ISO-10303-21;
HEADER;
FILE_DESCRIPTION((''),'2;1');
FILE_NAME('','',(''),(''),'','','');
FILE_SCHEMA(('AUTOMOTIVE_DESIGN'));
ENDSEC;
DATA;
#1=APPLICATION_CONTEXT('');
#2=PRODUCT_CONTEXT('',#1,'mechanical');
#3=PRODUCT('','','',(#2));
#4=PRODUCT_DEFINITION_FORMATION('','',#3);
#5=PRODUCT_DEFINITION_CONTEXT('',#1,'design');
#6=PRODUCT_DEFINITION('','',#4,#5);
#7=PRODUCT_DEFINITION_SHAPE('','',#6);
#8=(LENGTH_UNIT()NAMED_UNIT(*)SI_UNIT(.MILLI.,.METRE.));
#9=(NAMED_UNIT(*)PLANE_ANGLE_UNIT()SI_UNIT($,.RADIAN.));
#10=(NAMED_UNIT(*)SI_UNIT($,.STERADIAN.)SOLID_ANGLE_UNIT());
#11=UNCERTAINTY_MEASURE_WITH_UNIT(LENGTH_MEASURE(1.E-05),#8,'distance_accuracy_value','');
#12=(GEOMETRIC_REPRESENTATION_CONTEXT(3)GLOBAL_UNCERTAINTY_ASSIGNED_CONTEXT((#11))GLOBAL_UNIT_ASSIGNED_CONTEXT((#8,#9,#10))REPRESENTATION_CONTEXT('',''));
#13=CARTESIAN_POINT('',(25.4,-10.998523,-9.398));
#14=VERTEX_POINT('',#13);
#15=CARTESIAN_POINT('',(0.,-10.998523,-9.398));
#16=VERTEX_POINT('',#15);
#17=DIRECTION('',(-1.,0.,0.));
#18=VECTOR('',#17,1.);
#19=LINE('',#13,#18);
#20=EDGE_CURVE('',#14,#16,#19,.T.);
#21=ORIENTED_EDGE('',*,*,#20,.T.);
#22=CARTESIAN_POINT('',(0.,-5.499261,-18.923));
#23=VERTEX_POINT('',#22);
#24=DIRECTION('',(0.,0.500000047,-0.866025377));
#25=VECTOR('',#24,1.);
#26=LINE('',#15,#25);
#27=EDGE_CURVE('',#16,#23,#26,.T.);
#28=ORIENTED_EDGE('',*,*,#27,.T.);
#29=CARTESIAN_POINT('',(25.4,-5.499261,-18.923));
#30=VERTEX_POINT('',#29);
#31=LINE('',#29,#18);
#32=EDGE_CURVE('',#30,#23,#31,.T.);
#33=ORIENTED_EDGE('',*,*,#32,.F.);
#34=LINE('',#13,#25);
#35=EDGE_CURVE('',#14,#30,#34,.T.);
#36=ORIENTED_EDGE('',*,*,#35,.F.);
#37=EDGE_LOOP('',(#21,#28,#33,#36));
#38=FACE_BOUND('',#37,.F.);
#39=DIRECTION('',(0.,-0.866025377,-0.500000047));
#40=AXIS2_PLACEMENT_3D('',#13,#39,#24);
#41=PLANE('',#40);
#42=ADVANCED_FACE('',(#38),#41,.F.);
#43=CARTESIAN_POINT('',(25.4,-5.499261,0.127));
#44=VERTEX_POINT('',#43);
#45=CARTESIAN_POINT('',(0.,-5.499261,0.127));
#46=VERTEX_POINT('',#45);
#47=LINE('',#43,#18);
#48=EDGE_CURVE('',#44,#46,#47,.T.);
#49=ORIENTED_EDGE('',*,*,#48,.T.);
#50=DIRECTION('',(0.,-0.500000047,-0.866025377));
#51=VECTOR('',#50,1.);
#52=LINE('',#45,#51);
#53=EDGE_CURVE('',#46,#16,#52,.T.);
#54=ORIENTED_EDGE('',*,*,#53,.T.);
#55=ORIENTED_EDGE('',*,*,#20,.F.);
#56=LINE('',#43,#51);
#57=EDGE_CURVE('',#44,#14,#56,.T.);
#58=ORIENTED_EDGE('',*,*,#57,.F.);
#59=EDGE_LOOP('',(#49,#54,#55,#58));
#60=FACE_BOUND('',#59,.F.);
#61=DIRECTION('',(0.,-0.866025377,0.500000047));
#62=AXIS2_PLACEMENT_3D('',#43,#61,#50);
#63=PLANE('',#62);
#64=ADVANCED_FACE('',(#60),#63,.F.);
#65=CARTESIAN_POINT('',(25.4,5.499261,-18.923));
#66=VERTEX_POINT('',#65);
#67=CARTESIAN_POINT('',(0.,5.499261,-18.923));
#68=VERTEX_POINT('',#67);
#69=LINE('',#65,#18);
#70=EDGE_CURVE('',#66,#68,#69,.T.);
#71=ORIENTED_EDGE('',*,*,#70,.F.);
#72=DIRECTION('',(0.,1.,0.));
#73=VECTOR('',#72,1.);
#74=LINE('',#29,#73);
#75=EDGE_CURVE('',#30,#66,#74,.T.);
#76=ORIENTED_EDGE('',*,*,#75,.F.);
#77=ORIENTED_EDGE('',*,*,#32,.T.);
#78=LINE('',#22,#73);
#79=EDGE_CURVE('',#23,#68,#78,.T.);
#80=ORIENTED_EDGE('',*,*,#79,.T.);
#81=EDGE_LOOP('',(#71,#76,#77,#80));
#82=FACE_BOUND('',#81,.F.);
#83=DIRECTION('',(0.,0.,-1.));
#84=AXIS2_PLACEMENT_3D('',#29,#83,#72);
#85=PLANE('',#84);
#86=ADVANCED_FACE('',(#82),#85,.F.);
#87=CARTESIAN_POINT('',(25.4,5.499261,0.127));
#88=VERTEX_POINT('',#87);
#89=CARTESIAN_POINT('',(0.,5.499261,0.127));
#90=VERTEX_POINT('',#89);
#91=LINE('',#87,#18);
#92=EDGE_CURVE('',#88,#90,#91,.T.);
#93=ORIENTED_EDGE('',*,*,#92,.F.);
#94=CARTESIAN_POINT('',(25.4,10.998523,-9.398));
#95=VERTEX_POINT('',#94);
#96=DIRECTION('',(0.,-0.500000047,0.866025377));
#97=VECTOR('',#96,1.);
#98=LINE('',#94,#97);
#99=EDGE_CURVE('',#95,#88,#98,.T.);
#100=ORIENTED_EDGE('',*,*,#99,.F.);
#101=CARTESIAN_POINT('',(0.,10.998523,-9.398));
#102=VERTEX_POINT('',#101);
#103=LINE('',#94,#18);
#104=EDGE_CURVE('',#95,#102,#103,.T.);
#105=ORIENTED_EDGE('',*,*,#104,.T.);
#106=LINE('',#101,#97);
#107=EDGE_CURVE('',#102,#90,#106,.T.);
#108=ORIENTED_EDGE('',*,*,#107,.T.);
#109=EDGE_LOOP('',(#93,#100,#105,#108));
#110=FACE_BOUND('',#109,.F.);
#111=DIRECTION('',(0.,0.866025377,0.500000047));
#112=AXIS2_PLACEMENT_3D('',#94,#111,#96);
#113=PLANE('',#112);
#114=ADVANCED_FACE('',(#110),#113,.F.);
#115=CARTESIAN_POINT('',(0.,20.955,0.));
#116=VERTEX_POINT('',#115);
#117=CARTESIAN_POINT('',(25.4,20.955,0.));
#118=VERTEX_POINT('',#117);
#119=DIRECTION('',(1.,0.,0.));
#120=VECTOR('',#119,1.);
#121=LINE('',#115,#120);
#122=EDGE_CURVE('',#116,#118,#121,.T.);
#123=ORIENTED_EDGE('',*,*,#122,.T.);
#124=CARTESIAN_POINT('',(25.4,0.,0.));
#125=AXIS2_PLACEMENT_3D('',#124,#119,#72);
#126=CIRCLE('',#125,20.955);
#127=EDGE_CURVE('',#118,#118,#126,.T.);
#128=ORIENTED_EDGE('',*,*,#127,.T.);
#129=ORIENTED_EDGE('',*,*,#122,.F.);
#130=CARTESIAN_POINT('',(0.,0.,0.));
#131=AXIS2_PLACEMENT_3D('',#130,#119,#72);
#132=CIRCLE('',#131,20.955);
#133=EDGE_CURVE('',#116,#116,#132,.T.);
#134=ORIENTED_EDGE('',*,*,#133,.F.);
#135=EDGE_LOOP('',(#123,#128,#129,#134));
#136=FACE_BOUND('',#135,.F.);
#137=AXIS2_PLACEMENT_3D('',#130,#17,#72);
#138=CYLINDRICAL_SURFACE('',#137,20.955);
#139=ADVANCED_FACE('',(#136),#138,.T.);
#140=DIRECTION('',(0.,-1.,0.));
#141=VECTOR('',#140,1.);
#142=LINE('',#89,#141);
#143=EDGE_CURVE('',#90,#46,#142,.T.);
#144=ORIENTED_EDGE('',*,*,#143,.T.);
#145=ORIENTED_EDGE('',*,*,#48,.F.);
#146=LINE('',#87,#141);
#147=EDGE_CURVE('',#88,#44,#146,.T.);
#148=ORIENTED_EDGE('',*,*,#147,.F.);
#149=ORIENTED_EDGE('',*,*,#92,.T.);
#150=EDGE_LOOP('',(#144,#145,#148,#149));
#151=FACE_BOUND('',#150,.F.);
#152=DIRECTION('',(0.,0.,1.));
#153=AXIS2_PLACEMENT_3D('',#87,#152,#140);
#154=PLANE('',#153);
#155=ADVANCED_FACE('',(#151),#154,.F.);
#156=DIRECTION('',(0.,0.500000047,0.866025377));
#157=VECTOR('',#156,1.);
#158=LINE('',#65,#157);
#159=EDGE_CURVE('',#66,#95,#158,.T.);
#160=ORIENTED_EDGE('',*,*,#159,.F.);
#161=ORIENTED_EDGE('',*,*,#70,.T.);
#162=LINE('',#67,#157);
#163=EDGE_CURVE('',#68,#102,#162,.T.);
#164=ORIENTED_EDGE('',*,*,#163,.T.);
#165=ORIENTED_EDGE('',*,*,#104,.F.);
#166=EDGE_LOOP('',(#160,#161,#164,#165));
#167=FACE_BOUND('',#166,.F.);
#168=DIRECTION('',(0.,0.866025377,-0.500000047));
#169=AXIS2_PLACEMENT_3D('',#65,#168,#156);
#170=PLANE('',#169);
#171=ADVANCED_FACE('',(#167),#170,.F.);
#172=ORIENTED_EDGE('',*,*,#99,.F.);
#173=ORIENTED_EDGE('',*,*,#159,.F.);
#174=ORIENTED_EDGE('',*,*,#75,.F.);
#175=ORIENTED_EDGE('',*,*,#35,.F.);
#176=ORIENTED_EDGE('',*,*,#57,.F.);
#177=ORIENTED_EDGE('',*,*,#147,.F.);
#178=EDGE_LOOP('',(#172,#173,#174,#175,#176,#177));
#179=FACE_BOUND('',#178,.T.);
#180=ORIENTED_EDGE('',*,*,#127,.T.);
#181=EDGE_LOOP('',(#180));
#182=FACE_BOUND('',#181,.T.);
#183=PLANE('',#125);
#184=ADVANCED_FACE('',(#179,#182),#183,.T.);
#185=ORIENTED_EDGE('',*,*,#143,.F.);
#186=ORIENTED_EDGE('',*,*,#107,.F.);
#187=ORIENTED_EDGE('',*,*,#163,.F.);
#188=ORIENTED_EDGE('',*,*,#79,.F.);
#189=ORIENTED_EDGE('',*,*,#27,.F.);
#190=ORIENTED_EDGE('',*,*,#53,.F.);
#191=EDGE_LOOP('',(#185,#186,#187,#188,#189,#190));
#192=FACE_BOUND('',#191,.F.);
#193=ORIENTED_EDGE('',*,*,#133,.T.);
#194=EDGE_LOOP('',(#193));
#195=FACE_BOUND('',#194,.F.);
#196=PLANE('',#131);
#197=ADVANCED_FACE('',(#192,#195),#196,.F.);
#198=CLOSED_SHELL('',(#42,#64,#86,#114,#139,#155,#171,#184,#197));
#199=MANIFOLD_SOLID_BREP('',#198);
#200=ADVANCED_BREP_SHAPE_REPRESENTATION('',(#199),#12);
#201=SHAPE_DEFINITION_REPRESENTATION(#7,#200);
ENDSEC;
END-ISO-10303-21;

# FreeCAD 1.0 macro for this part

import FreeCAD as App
import Part
import Sketcher

V = App.Vector
Q = App.Units.Quantity


def add_polygon(sketch, points):
    """Adds a closed chain of lines whose ends are joined by coincident constraints."""
    first, n = sketch.GeometryCount, len(points)
    for a, b in zip(points, points[1:] + points[:1]):
        sketch.addGeometry(Part.LineSegment(App.Vector(*a, 0), App.Vector(*b, 0)), False)
    for i in range(n):
        sketch.addConstraint(Sketcher.Constraint("Coincident", first + i, 2, first + (i + 1) % n, 1))

doc = App.newDocument("Part")
params = doc.addObject("Spreadsheet::Sheet", "Params")
for row, (alias, value) in enumerate([
    ("sketch1_diameter", "1.65 in"),
    ("pad1_length", "1 in"),
    ("pocket1_length", "1 in"),
], start=1):
    params.set(f"A{row}", alias)
    params.set(f"B{row}", "=" + value)
    params.setAlias(f"B{row}", alias)

body = doc.addObject("PartDesign::Body", "Body")

# Sketch on YZ plane
sketch1 = body.newObject("Sketcher::SketchObject", "Sketch")
sketch1.AttachmentSupport = (doc.getObject("YZ_Plane"), [""])
sketch1.MapMode = "FlatFace"
sketch1.addGeometry(Part.Circle(V(0, 0, 0), V(0, 0, 1), 21), False)
sketch1.addConstraint(Sketcher.Constraint("Coincident", 0, 3, -1, 1))
sketch1.addConstraint(Sketcher.Constraint("Diameter", 0, Q("1.65 in")))
sketch1.setExpression("Constraints[1]", "Params.sketch1_diameter")
pad1 = body.newObject("PartDesign::Pad", "Pad")
pad1.Profile = sketch1
pad1.setExpression("Length", "Params.pad1_length")

# Sketch on YZ plane
sketch2 = body.newObject("Sketcher::SketchObject", "Sketch001")
sketch2.AttachmentSupport = (doc.getObject("YZ_Plane"), [""])
sketch2.MapMode = "FlatFace"
sketch2.AttachmentOffset = App.Placement(V(0, 0, 1 * 25.4), App.Rotation())
add_polygon(sketch2, [(5, -19), (11, -9), (5, 0), (-5, 0), (-11, -9), (-5, -19)])  # lines 0-5
sketch2.addConstraint(Sketcher.Constraint("Horizontal", 2))
sketch2.addConstraint(Sketcher.Constraint("Horizontal", 5))
sketch2.addConstraint(Sketcher.Constraint("Symmetric", 0, 2, 3, 2, -2))
sketch2.addConstraint(Sketcher.Constraint("Parallel", 0, 3))
sketch2.addConstraint(Sketcher.Constraint("Parallel", 1, 4))
sketch2.addConstraint(Sketcher.Constraint("Vertical", 2, 2, 4, 2))
sketch2.addConstraint(Sketcher.Constraint("Vertical", 1, 2, 5, 2))
sketch2.addConstraint(Sketcher.Constraint("Angle", 0, Q("59.999997 deg")))
sketch2.addConstraint(Sketcher.Constraint("DistanceY", 0, 2, -1, 1, Q("0.37 in")))
sketch2.addConstraint(Sketcher.Constraint("DistanceY", 4, 2, 2, 2, Q("0.75 in")))
sketch2.addConstraint(Sketcher.Constraint("DistanceX", 2, 2, 2, 1, Q("10.998522 mm")))
pocket1 = body.newObject("PartDesign::Pocket", "Pocket")
pocket1.Profile = sketch2
pocket1.setExpression("Length", "Params.pocket1_length")

doc.recompute()
